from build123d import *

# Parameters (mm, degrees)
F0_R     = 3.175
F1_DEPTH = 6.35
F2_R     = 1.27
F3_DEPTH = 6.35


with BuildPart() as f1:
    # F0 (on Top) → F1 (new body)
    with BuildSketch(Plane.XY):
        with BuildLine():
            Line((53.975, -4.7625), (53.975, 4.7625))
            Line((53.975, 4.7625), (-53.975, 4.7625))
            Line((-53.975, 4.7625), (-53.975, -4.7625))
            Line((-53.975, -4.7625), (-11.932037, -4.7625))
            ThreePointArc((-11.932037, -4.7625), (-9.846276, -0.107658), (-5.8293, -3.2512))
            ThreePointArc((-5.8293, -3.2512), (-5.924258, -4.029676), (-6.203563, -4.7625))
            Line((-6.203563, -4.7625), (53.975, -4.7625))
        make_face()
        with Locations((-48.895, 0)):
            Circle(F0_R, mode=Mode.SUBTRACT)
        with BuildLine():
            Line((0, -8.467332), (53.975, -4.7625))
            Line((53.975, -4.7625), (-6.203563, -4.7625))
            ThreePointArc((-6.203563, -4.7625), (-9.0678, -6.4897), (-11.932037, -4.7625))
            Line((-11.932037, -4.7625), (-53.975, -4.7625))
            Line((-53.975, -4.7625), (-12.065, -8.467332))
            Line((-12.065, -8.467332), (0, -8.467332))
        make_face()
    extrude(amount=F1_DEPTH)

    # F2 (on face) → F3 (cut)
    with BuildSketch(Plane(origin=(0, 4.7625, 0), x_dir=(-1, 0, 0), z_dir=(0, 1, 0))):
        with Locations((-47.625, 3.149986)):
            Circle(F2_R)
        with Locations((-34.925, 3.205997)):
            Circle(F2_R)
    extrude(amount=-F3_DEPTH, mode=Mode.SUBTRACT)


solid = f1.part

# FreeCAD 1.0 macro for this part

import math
import FreeCAD as App
import Part
import Sketcher
from FreeCAD import Vector
Q = App.Units.Quantity


def add_polygon(sketch, points):
    """Adds a closed chain of lines whose ends are joined by coincident constraints."""
    first, n = sketch.GeometryCount, len(points)
    for a, b in zip(points, points[1:] + points[:1]):
        sketch.addGeometry(Part.LineSegment(App.Vector(*a, 0), App.Vector(*b, 0)), False)
    for i in range(n):
        sketch.addConstraint(Sketcher.Constraint("Coincident", first + i, 2, first + (i + 1) % n, 1))

doc = App.newDocument("Part")
body = doc.addObject("PartDesign::Body", "Body")

# Sketch on XY plane
sketch1 = body.newObject("Sketcher::SketchObject", "Sketch")
sketch1.AttachmentSupport = (doc.getObject("XY_Plane"), [""])
sketch1.MapMode = "FlatFace"
add_polygon(sketch1, [(53.975, -4.7625), (53.975, 4.7625), (-53.975, 4.7625), (-53.975, -4.7625), (-12.065, -8.467332), (0, -8.467332)])  # lines 0-5
sketch1.addGeometry(Part.ArcOfCircle(Part.Circle(Vector(-9.067803, -3.251199, 0), Vector(0, 0, 1), 3.238503), math.radians(-27.818133), math.radians(-0.000018)), False)  # 6
sketch1.addGeometry(Part.ArcOfCircle(Part.Circle(Vector(-9.0678, -3.2512, 0), Vector(0, 0, 1), 3.2385), math.radians(-152.181864), math.radians(-27.818136)), False)  # 7
sketch1.addGeometry(Part.ArcOfCircle(Part.Circle(Vector(-9.0678, -3.2512, 0), Vector(0, 0, 1), 3.2385), math.radians(0.000001), math.radians(207.818139)), False)  # 8
sketch1.addGeometry(Part.Circle(Vector(-48.895, 0, 0), Vector(0, 0, 1), 3.175), False)  # 9
sketch1.addConstraint(Sketcher.Constraint("Tangent", 6, 1, 7, 2))
sketch1.addConstraint(Sketcher.Constraint("Tangent", 7, 1, 8, 2))
sketch1.addConstraint(Sketcher.Constraint("Tangent", 8, 1, 6, 2))
sketch1.addConstraint(Sketcher.Constraint("Vertical", 0))
sketch1.addConstraint(Sketcher.Constraint("Horizontal", 1))
sketch1.addConstraint(Sketcher.Constraint("Vertical", 2))
sketch1.addConstraint(Sketcher.Constraint("Horizontal", 4))
sketch1.addConstraint(Sketcher.Constraint("Symmetric", 0, 2, 2, 2, -1, 1))
sketch1.addConstraint(Sketcher.Constraint("PointOnObject", 9, 3, -1))
sketch1.addConstraint(Sketcher.Constraint("PointOnObject", 4, 2, -2))
sketch1.addConstraint(Sketcher.Constraint("Horizontal", 2, 2, 5, 2))
sketch1.addConstraint(Sketcher.Constraint("Horizontal", 5, 2, 6, 1))
sketch1.addConstraint(Sketcher.Constraint("Horizontal", 6, 1, 7, 1))
sketch1.addConstraint(Sketcher.Constraint("Horizontal", 7, 3, 8, 1))
sketch1.addConstraint(Sketcher.Constraint("Diameter", 9, Q("0.25 in")))
sketch1.addConstraint(Sketcher.Constraint("DistanceX", 1, 2, 1, 1, Q("4.25 in")))
sketch1.addConstraint(Sketcher.Constraint("Radius", 6, Q("0.1275001 in")))
sketch1.addConstraint(Sketcher.Constraint("DistanceX", 1, 2, 9, 3, Q("0.2 in")))
sketch1.addConstraint(Sketcher.Constraint("Distance", 5, Q("2.13 in")))
sketch1.addConstraint(Sketcher.Constraint("DistanceX", 4, 1, 4, 2, Q("0.475 in")))
sketch1.addConstraint(Sketcher.Constraint("DistanceY", 0, 1, 0, 2, Q("0.375 in")))
sketch1.addConstraint(Sketcher.Constraint("DistanceX", 6, 3, -1, 1, Q("0.3570001 in")))
sketch1.addConstraint(Sketcher.Constraint("DistanceY", 6, 3, -1, 1, Q("0.128 in")))
pad1 = body.newObject("PartDesign::Pad", "Pad")
pad1.Profile = sketch1
pad1.Length = Q("0.25 in")

# Sketch on XZ plane
sketch2 = body.newObject("Sketcher::SketchObject", "Sketch001")
sketch2.AttachmentSupport = (doc.getObject("XZ_Plane"), [""])
sketch2.MapMode = "FlatFace"
sketch2.AttachmentOffset = App.Placement(Vector(0, 0, -0.1875 * 25.4), App.Rotation())
sketch2.addGeometry(Part.Circle(Vector(47.625, 3.149986, 0), Vector(0, 0, 1), 1.27), False)
sketch2.addGeometry(Part.Circle(Vector(34.925, 3.205997, 0), Vector(0, 0, 1), 1.27), False)
sketch2.addConstraint(Sketcher.Constraint("Equal", 0, 1))
sketch2.addConstraint(Sketcher.Constraint("Diameter", 0, Q("0.1 in")))
sketch2.addConstraint(Sketcher.Constraint("DistanceX", 1, 3, 0, 3, Q("0.5 in")))
sketch2.addConstraint(Sketcher.Constraint("DistanceX", -1, 1, 0, 3, Q("1.875 in")))
sketch2.addConstraint(Sketcher.Constraint("DistanceY", 0, 3, 1, 3, 0.056011))
sketch2.addConstraint(Sketcher.Constraint("DistanceY", -1, 1, 0, 3, 3.149986))
pocket1 = body.newObject("PartDesign::Pocket", "Pocket")
pocket1.Profile = sketch2
pocket1.Length = Q("0.25 in")
pocket1.Reversed = True

doc.recompute()
